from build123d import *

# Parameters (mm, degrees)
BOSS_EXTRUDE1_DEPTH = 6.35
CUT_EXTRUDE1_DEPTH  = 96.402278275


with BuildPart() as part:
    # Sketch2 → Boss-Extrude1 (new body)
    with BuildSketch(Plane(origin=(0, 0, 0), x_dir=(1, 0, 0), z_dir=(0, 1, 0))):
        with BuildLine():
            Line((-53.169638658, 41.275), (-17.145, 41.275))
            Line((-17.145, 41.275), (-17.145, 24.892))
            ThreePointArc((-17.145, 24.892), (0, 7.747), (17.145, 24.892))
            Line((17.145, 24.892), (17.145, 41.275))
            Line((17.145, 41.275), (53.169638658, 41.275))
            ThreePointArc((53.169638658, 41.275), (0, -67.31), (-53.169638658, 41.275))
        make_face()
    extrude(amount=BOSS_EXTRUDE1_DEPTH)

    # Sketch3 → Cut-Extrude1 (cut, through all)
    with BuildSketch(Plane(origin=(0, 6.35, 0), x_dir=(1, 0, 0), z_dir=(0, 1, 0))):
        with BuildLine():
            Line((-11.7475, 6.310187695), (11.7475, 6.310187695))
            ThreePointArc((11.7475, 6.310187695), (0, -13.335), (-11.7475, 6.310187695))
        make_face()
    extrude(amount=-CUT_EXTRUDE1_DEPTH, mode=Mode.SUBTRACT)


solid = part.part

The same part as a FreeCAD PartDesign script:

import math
import FreeCAD as App
import Part
import Sketcher
Q = App.Units.Quantity

doc = App.newDocument("Part")
params = doc.addObject("Spreadsheet::Sheet", "Params")
for row, (alias, value) in enumerate([
    ("sketch1_radius", "2.65 in"),
    ("sketch1_radius2", "0.675 in"),
    ("sketch1_height", "0.645 in"),
    ("pad1_length", "0.25 in"),
    ("sketch2_radius", "0.525 in"),
    ("sketch2_width", "0.925 in"),
], start=1):
    params.set(f"A{row}", alias)
    params.set(f"B{row}", "=" + value)
    params.setAlias(f"B{row}", alias)

body = doc.addObject("PartDesign::Body", "Body")

# Sketch on XZ plane
sketch1 = body.newObject("Sketcher::SketchObject", "Sketch")
sketch1.AttachmentSupport = (doc.getObject("XZ_Plane"), [""])
sketch1.MapMode = "FlatFace"
sketch1.addGeometry([
    Part.LineSegment(App.Vector(-17.145, -41.275, 0), App.Vector(-53.169639, -41.275, 0)),  # 0
    Part.ArcOfCircle(Part.Circle(App.Vector(0, 0, 0), App.Vector(0, 0, 1), 67.31), math.radians(-37.821793), math.radians(217.821793)),  # 1
    Part.LineSegment(App.Vector(53.169639, -41.275, 0), App.Vector(17.145, -41.275, 0)),  # 2
    Part.LineSegment(App.Vector(17.145, -41.275, 0), App.Vector(17.145, -24.892, 0)),  # 3
    Part.ArcOfCircle(Part.Circle(App.Vector(0, -24.892, 0), App.Vector(0, 0, 1), 17.145), math.radians(0), math.radians(180)),  # 4
    Part.LineSegment(App.Vector(-17.145, -24.892, 0), App.Vector(-17.145, -41.275, 0)),  # 5
], False)
sketch1.addConstraint([
    Sketcher.Constraint("Coincident", 0, 2, 1, 2),
    Sketcher.Constraint("Coincident", 1, 1, 2, 1),
    Sketcher.Constraint("Coincident", 2, 2, 3, 1),
    Sketcher.Constraint("Tangent", 3, 2, 4, 1),
    Sketcher.Constraint("Tangent", 4, 2, 5, 1),
    Sketcher.Constraint("Coincident", 5, 2, 0, 1),
    Sketcher.Constraint("Horizontal", 0),
    Sketcher.Constraint("Horizontal", 2),
    Sketcher.Constraint("Vertical", 3),
    Sketcher.Constraint("Vertical", 5),
    Sketcher.Constraint("Coincident", 1, 3, -1, 1),
    Sketcher.Constraint("Symmetric", 2, 2, 5, 2, -2),
    Sketcher.Constraint("Radius", 1, Q("2.65 in")),
    Sketcher.Constraint("Radius", 4, Q("0.675 in")),
    Sketcher.Constraint("DistanceY", 3, 1, 3, 2, Q("0.645 in")),
    Sketcher.Constraint("DistanceY", 4, 3, -1, 1, Q("0.98 in")),
])
sketch1.setExpression("Constraints[12]", "Params.sketch1_radius")
sketch1.setExpression("Constraints[13]", "Params.sketch1_radius2")
sketch1.setExpression("Constraints[14]", "Params.sketch1_height")
pad1 = body.newObject("PartDesign::Pad", "Pad")
pad1.Profile = sketch1
pad1.setExpression("Length", "Params.pad1_length")
pad1.Reversed = True

# Sketch on XZ plane
sketch2 = body.newObject("Sketcher::SketchObject", "Sketch001")
sketch2.AttachmentSupport = (doc.getObject("XZ_Plane"), [""])
sketch2.MapMode = "FlatFace"
sketch2.AttachmentOffset = App.Placement(App.Vector(0, 0, -0.25 * 25.4), App.Rotation())
sketch2.addGeometry([
    Part.LineSegment(App.Vector(11.7475, -6.310188, 0), App.Vector(-11.7475, -6.310188, 0)),
    Part.ArcOfCircle(Part.Circle(App.Vector(0, 0, 0), App.Vector(0, 0, 1), 13.335), math.radians(-28.242537), math.radians(208.242537)),
], False)
sketch2.addConstraint([
    Sketcher.Constraint("Coincident", 0, 1, 1, 1),
    Sketcher.Constraint("Coincident", 1, 2, 0, 2),
    Sketcher.Constraint("Horizontal", 0),
    Sketcher.Constraint("Coincident", 1, 3, -1, 1),
    Sketcher.Constraint("Radius", 1, Q("0.525 in")),
    Sketcher.Constraint("DistanceX", 0, 2, 0, 1, Q("0.925 in")),
])
sketch2.setExpression("Constraints[4]", "Params.sketch2_radius")
sketch2.setExpression("Constraints[5]", "Params.sketch2_width")
pocket1 = body.newObject("PartDesign::Pocket", "Pocket")
pocket1.Profile = sketch2
pocket1.Type = "ThroughAll"
pocket1.Reversed = True

doc.recompute()
